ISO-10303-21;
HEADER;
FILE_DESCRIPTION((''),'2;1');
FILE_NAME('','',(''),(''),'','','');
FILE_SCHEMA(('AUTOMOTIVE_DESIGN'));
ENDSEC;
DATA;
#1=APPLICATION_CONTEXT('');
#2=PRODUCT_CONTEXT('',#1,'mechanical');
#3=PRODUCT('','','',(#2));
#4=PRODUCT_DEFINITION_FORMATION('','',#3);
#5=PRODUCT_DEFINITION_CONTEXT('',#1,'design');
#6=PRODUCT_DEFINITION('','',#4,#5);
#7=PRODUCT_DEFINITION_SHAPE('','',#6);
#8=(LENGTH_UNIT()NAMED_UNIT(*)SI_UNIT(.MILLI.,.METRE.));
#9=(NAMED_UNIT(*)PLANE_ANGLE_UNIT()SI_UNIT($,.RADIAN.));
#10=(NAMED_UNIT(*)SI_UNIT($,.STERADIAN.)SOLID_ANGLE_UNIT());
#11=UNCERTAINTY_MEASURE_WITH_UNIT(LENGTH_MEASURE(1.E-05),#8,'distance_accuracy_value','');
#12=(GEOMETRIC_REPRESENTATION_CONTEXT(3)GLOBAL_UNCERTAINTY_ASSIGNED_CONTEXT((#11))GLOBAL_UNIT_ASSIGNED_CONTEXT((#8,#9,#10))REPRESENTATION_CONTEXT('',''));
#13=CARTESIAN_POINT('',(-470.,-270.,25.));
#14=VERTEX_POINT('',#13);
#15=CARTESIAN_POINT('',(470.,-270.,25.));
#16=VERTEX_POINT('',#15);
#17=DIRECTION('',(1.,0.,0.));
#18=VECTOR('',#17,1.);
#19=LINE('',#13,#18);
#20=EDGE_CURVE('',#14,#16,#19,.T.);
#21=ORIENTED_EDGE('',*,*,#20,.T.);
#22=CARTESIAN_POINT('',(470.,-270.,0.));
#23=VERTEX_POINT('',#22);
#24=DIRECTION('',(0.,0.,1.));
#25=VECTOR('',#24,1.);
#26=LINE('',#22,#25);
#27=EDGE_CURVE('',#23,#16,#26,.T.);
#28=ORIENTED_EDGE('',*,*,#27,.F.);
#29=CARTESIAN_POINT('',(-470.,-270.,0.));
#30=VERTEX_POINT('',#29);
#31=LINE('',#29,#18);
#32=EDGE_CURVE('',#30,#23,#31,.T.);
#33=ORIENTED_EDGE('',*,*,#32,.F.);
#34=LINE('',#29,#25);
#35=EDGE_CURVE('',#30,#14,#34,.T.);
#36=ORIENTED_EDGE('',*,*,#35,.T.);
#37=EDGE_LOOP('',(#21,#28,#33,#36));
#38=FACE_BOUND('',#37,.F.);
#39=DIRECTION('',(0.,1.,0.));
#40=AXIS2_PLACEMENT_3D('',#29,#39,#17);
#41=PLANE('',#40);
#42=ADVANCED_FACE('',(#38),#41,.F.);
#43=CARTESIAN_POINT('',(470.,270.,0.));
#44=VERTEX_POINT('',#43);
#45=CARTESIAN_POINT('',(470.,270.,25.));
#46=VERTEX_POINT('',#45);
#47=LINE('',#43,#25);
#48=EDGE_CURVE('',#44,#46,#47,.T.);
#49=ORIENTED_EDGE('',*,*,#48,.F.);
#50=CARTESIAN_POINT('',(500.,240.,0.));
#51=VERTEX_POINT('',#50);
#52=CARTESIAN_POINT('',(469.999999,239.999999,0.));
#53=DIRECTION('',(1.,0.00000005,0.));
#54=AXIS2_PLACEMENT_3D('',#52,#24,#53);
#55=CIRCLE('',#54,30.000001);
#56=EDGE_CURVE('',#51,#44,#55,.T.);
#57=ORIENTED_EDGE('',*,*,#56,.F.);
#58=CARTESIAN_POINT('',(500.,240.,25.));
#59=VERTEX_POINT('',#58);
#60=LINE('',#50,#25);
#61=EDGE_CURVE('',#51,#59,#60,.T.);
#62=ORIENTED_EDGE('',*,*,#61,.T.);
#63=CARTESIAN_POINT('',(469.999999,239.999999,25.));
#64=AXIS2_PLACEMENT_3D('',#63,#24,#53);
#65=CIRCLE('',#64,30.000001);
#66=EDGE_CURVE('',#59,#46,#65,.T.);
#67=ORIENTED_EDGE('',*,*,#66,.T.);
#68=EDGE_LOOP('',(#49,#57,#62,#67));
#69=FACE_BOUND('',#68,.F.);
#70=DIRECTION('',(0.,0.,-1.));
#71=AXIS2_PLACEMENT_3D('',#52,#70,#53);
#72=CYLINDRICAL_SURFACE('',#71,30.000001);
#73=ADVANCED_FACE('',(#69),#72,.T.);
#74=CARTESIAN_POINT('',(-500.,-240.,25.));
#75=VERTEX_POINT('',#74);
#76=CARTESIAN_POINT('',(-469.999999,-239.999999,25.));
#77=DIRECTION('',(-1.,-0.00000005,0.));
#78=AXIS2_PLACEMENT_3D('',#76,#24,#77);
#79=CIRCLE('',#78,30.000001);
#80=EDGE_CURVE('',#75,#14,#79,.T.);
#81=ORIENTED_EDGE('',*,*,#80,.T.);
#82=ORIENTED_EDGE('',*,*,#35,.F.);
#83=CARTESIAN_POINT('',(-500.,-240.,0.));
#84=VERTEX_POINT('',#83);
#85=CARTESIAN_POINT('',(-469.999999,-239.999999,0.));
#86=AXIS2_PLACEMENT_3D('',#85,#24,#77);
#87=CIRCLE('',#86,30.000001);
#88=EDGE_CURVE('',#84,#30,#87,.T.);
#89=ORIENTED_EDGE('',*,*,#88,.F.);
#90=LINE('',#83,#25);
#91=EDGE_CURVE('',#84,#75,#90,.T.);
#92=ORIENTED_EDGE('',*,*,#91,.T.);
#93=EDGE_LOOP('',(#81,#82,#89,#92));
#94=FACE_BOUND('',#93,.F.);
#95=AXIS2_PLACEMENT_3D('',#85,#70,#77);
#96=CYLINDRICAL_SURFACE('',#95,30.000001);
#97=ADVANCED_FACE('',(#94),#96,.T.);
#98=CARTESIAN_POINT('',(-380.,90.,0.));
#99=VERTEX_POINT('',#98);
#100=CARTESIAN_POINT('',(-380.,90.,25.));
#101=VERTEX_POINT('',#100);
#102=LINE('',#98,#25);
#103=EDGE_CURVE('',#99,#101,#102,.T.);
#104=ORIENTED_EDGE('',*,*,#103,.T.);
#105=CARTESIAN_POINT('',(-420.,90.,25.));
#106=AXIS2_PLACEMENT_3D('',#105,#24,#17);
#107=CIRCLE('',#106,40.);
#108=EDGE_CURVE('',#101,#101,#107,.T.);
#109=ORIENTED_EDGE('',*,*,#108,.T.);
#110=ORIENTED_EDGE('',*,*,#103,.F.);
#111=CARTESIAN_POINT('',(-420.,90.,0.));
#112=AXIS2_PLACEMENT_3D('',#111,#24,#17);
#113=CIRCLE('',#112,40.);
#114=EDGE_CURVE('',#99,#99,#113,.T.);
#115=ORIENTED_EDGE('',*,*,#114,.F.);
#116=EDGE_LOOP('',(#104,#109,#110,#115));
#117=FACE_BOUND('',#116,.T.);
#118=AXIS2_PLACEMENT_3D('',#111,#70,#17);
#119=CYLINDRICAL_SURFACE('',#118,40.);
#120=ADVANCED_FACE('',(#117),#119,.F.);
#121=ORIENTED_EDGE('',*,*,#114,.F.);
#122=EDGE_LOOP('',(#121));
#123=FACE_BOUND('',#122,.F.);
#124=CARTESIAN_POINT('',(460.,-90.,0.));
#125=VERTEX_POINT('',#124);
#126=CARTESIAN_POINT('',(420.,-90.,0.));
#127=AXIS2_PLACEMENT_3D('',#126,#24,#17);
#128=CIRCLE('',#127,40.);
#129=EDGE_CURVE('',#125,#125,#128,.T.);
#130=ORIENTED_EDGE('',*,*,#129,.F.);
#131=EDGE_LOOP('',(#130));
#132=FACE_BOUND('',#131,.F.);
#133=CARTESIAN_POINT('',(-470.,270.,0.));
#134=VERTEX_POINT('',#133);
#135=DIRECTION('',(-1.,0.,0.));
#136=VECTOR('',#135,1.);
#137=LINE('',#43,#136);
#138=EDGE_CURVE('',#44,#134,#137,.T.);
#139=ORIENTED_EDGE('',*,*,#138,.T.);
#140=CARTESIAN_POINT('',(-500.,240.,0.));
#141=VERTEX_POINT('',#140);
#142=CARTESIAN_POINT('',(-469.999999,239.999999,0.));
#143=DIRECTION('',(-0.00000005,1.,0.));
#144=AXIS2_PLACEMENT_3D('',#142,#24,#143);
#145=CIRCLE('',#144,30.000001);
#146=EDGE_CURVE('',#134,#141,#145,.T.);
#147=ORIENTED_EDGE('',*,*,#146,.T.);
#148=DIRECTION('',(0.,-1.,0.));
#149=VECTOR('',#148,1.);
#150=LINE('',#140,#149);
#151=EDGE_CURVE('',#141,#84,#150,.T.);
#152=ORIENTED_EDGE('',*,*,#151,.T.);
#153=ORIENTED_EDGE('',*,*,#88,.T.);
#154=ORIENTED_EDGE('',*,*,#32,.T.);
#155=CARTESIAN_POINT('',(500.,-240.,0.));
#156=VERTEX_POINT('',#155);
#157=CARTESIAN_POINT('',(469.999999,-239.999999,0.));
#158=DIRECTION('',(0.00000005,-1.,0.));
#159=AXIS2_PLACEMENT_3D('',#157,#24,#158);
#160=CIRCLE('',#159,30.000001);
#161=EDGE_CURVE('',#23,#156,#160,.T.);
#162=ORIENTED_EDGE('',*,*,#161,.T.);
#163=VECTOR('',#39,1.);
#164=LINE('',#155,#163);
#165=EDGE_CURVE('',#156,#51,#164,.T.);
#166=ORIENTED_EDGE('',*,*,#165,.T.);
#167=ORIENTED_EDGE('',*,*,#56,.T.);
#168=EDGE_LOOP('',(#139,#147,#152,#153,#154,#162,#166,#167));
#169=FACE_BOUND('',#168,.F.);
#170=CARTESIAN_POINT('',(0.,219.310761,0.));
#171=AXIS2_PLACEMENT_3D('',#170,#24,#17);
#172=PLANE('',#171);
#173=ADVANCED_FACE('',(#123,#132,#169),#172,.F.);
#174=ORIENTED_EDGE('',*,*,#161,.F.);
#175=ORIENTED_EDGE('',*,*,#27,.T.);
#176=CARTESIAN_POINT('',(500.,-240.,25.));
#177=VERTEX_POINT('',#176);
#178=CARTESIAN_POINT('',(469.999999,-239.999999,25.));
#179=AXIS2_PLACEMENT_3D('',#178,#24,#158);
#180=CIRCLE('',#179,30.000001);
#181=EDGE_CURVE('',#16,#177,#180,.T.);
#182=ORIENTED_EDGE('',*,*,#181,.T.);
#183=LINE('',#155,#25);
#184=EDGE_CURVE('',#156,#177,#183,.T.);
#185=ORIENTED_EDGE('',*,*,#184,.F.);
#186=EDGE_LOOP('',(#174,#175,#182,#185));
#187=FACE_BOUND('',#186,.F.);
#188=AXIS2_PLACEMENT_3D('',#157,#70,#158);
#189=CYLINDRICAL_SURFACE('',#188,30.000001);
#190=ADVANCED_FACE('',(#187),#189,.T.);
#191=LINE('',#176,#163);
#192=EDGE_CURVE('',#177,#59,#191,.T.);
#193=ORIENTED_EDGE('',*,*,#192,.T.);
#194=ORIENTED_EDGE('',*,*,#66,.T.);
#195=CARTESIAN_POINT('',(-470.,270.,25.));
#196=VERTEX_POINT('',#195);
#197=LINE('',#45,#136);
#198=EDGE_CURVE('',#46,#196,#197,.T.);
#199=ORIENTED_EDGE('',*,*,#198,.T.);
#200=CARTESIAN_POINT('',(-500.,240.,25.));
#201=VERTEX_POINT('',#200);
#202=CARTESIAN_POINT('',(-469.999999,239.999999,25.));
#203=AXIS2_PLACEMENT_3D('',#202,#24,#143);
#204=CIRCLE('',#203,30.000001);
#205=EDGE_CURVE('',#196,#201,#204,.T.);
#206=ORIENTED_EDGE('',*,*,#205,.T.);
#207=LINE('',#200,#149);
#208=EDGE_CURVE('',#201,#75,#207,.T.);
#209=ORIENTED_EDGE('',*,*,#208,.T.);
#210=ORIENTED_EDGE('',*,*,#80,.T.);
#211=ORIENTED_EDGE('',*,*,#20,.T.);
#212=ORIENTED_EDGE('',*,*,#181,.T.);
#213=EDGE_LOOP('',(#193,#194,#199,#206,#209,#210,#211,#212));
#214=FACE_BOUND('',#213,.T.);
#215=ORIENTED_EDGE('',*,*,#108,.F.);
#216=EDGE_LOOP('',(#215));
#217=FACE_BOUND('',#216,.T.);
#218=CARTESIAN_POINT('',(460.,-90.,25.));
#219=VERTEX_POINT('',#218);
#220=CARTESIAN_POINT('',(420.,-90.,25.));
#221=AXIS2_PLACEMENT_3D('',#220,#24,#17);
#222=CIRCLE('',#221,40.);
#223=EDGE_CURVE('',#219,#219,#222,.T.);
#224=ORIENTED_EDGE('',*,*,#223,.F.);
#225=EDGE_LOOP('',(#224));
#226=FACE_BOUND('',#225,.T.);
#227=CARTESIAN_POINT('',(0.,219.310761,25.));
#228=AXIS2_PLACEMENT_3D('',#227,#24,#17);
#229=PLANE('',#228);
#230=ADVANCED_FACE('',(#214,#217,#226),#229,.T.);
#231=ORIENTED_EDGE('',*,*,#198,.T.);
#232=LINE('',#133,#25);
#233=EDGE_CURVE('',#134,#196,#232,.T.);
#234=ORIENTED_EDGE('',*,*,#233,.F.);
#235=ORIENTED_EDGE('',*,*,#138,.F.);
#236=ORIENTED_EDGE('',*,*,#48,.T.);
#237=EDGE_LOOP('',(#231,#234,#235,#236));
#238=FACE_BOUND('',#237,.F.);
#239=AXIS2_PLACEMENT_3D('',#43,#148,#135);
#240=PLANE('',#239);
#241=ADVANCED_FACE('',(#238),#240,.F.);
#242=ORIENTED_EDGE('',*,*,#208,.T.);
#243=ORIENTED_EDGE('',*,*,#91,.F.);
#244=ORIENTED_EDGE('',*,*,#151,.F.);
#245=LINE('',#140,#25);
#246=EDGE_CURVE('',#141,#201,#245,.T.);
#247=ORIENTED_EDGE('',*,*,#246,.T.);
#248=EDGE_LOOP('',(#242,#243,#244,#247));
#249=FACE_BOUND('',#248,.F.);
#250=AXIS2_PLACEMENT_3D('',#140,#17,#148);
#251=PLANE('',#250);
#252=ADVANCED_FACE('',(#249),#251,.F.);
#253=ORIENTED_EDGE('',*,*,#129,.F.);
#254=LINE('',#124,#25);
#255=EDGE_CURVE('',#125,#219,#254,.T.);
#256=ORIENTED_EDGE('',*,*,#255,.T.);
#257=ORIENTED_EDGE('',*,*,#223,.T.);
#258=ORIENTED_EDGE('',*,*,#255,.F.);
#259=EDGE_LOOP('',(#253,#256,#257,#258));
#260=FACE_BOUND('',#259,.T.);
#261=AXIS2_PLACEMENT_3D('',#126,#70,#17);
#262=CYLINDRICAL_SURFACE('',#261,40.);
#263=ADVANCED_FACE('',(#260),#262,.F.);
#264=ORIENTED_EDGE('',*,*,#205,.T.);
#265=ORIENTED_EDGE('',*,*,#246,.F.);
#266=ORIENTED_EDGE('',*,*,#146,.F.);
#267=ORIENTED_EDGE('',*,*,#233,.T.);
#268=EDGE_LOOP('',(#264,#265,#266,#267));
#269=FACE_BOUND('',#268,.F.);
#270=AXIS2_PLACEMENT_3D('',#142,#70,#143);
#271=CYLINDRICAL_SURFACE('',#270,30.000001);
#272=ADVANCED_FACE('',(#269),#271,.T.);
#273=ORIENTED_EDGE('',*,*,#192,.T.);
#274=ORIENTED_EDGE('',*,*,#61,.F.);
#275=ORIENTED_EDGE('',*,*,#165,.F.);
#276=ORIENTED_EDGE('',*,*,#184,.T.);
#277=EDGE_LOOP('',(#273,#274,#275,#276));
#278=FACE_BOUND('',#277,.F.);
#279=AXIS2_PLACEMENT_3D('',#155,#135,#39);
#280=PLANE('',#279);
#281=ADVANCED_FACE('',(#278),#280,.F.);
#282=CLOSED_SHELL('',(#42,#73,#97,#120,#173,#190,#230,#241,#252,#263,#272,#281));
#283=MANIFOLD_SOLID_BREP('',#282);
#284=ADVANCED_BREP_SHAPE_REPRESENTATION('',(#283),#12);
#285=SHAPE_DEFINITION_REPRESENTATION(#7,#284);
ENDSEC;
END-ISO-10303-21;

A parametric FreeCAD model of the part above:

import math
import FreeCAD as App
import Part
import Sketcher

V = App.Vector

doc = App.newDocument("Part")
body = doc.addObject("PartDesign::Body", "Body")

# Sketch on XY plane
sketch1 = body.newObject("Sketcher::SketchObject", "Sketch")
sketch1.AttachmentSupport = (doc.getObject("XY_Plane"), [""])
sketch1.MapMode = "FlatFace"
sketch1.addGeometry(Part.ArcOfCircle(Part.Circle(V(469.999999, 239.999999, 0), V(0, 0, 1), 30.000001), math.radians(0.000003), math.radians(89.999997)), False)
sketch1.addGeometry(Part.LineSegment(V(470, 270, 0), V(-470, 270, 0)), False)
sketch1.addGeometry(Part.ArcOfCircle(Part.Circle(V(-469.999999, 239.999999, 0), V(0, 0, 1), 30.000001), math.radians(90.000003), math.radians(179.999997)), False)
sketch1.addGeometry(Part.LineSegment(V(-500, 240, 0), V(-500, -240, 0)), False)
sketch1.addGeometry(Part.ArcOfCircle(Part.Circle(V(-469.999999, -239.999999, 0), V(0, 0, 1), 30.000001), math.radians(-179.999997), math.radians(-90.000003)), False)
sketch1.addGeometry(Part.LineSegment(V(-470, -270, 0), V(470, -270, 0)), False)
sketch1.addGeometry(Part.ArcOfCircle(Part.Circle(V(469.999999, -239.999999, 0), V(0, 0, 1), 30.000001), math.radians(-89.999997), math.radians(-0.000003)), False)
sketch1.addGeometry(Part.LineSegment(V(500, -240, 0), V(500, 240, 0)), False)
sketch1.addGeometry(Part.Circle(V(420, -90, 0), V(0, 0, 1), 40), False)
sketch1.addGeometry(Part.Circle(V(-420, 90, 0), V(0, 0, 1), 40), False)
sketch1.addConstraint(Sketcher.Constraint("Tangent", 0, 2, 1, 1))
sketch1.addConstraint(Sketcher.Constraint("Tangent", 1, 2, 2, 1))
sketch1.addConstraint(Sketcher.Constraint("Tangent", 2, 2, 3, 1))
sketch1.addConstraint(Sketcher.Constraint("Tangent", 3, 2, 4, 1))
sketch1.addConstraint(Sketcher.Constraint("Tangent", 4, 2, 5, 1))
sketch1.addConstraint(Sketcher.Constraint("Tangent", 5, 2, 6, 1))
sketch1.addConstraint(Sketcher.Constraint("Tangent", 6, 2, 7, 1))
sketch1.addConstraint(Sketcher.Constraint("Tangent", 7, 2, 0, 1))
sketch1.addConstraint(Sketcher.Constraint("Horizontal", 1))
sketch1.addConstraint(Sketcher.Constraint("Vertical", 3))
sketch1.addConstraint(Sketcher.Constraint("Horizontal", 5))
sketch1.addConstraint(Sketcher.Constraint("Vertical", 7))
sketch1.addConstraint(Sketcher.Constraint("Equal", 0, 2))
sketch1.addConstraint(Sketcher.Constraint("Equal", 2, 4))
sketch1.addConstraint(Sketcher.Constraint("Equal", 4, 6))
sketch1.addConstraint(Sketcher.Constraint("Equal", 8, 9))
sketch1.addConstraint(Sketcher.Constraint("Symmetric", 0, 3, 4, 3, -1, 1))
sketch1.addConstraint(Sketcher.Constraint("Symmetric", 8, 3, 9, 3, -1, 1))
sketch1.addConstraint(Sketcher.Constraint("Diameter", 8, 80.0))
sketch1.addConstraint(Sketcher.Constraint("Radius", 0, 30.000001))
sketch1.addConstraint(Sketcher.Constraint("DistanceX", 1, 2, 1, 1, 940.0))
sketch1.addConstraint(Sketcher.Constraint("DistanceY", 3, 2, 3, 1, 480.0))
sketch1.addConstraint(Sketcher.Constraint("DistanceX", -1, 1, 8, 3, 420.0))
sketch1.addConstraint(Sketcher.Constraint("DistanceY", 8, 3, -1, 1, 90.0))
pad1 = body.newObject("PartDesign::Pad", "Pad")
pad1.Profile = sketch1
pad1.Length = 25

doc.recompute()
